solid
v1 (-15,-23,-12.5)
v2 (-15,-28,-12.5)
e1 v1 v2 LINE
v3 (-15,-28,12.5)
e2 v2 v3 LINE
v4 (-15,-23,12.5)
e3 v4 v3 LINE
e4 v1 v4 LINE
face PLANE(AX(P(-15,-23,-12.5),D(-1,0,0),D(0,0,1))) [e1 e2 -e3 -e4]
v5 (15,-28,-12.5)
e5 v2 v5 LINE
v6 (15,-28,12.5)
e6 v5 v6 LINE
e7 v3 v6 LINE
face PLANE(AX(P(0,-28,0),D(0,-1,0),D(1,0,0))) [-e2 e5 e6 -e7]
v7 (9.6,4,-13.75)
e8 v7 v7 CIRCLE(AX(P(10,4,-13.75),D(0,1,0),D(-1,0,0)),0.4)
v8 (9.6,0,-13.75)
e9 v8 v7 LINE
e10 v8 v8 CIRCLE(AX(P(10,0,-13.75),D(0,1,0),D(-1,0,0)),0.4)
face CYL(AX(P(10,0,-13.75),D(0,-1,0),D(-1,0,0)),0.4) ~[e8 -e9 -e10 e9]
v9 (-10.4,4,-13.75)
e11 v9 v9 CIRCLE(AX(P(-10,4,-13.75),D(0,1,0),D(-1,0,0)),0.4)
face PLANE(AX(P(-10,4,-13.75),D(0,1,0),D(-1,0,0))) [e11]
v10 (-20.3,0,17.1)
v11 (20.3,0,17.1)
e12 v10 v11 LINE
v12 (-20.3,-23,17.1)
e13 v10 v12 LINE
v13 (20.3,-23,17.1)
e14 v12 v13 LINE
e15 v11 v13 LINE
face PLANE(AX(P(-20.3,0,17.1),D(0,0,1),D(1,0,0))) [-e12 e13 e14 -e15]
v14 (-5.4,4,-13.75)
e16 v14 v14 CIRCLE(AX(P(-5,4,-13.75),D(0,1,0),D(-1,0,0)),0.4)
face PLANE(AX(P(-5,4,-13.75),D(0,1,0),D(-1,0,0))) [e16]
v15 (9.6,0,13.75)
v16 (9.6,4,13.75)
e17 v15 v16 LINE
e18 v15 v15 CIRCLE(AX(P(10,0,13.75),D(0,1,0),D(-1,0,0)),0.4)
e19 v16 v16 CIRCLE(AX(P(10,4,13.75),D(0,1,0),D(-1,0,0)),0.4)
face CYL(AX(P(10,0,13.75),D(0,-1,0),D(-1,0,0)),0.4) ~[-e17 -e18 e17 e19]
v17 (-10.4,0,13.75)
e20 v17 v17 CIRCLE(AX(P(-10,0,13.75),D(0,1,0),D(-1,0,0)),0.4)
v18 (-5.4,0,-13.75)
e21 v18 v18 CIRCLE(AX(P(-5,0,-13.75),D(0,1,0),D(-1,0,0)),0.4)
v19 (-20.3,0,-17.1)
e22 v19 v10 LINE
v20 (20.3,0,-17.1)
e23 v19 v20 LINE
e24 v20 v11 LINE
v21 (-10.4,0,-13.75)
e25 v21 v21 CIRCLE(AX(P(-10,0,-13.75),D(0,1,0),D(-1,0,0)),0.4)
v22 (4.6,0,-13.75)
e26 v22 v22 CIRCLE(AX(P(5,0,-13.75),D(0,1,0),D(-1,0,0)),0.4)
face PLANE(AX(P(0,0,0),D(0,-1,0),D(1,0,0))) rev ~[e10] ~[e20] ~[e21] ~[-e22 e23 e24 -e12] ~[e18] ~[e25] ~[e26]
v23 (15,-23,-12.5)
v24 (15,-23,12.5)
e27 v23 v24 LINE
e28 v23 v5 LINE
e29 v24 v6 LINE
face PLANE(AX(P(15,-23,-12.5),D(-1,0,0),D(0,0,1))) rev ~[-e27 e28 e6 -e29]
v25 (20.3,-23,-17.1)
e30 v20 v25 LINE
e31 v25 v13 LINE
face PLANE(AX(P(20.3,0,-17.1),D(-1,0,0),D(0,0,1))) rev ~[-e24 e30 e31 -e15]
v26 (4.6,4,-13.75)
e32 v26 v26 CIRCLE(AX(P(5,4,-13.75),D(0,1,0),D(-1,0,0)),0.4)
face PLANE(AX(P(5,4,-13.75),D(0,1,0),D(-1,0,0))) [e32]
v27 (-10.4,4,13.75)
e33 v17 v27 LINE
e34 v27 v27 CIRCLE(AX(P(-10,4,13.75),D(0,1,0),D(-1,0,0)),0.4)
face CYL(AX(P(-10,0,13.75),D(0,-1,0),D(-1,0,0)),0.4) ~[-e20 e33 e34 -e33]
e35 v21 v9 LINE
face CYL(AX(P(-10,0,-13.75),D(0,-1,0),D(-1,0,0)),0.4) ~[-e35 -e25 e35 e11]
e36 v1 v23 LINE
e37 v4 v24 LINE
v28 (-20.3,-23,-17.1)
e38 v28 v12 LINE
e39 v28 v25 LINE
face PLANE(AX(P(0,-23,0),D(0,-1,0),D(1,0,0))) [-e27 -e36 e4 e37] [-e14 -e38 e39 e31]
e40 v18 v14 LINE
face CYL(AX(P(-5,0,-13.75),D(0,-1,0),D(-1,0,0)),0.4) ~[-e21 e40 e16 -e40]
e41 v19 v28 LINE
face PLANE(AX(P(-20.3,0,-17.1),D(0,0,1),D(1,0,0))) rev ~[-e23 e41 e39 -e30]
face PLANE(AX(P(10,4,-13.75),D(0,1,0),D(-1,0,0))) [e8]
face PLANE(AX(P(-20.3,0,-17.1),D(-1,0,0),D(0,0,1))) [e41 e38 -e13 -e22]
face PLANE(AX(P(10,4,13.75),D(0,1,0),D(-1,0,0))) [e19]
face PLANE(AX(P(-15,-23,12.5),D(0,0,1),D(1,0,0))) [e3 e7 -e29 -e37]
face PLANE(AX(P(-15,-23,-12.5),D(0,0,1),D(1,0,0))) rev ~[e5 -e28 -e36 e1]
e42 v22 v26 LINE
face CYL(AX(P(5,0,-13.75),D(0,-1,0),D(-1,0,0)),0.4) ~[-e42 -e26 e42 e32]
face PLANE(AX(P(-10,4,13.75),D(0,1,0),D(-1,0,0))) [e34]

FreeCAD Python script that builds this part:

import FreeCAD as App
import Part
import Sketcher
from FreeCAD import Vector


def add_polygon(sketch, points):
    """Adds a closed chain of lines whose ends are joined by coincident constraints."""
    first, n = sketch.GeometryCount, len(points)
    for a, b in zip(points, points[1:] + points[:1]):
        sketch.addGeometry(Part.LineSegment(App.Vector(*a, 0), App.Vector(*b, 0)), False)
    for i in range(n):
        sketch.addConstraint(Sketcher.Constraint("Coincident", first + i, 2, first + (i + 1) % n, 1))

doc = App.newDocument("Part")
body = doc.addObject("PartDesign::Body", "Body")

sketch1 = body.newObject("Sketcher::SketchObject", "Sketch")
sketch1.AttachmentSupport = (doc.getObject("XZ_Plane"), [""])
sketch1.MapMode = "FlatFace"
add_polygon(sketch1, [(-20, 17), (-20, -17), (20, -17), (20, 17)])
sketch1.addConstraint([
    Sketcher.Constraint("Vertical", 0),
    Sketcher.Constraint("Horizontal", 1),
    Sketcher.Constraint("Vertical", 2),
    Sketcher.Constraint("Horizontal", 3),
    Sketcher.Constraint("Symmetric", 0, 2, 2, 2, -1, 1),
    Sketcher.Constraint("DistanceX", 1, 1, 1, 2, 40.6),
    Sketcher.Constraint("DistanceY", 0, 2, 0, 1, 34.2),
])
pad1 = body.newObject("PartDesign::Pad", "Pad")
pad1.Profile = sketch1
pad1.Length = 23

sketch2 = body.newObject("Sketcher::SketchObject", "Sketch001")
sketch2.AttachmentSupport = (doc.getObject("XZ_Plane"), [""])
sketch2.MapMode = "FlatFace"
sketch2.AttachmentOffset = App.Placement(Vector(0, 0, 23), App.Rotation())
add_polygon(sketch2, [(-15, 12), (-15, -12), (15, -12), (15, 12)])
sketch2.addConstraint([
    Sketcher.Constraint("Vertical", 0),
    Sketcher.Constraint("Horizontal", 1),
    Sketcher.Constraint("Vertical", 2),
    Sketcher.Constraint("Horizontal", 3),
    Sketcher.Constraint("Symmetric", 0, 2, 2, 2, -1, 1),
    Sketcher.Constraint("DistanceX", 1, 1, 1, 2, 30.0),
    Sketcher.Constraint("DistanceY", 0, 2, 0, 1, 25.0),
])
pad2 = body.newObject("PartDesign::Pad", "Pad001")
pad2.Profile = sketch2
pad2.Length = 5

sketch3 = body.newObject("Sketcher::SketchObject", "Sketch002")
sketch3.AttachmentSupport = (doc.getObject("XZ_Plane"), [""])
sketch3.MapMode = "FlatFace"
sketch3.addGeometry([
    Part.Circle(Vector(-10, 13.75, 0), Vector(0, 0, 1), 0.4),
    Part.Circle(Vector(10, 13.75, 0), Vector(0, 0, 1), 0.4),
    Part.Circle(Vector(10, -13.75, 0), Vector(0, 0, 1), 0.4),
    Part.Circle(Vector(5, -13.75, 0), Vector(0, 0, 1), 0.4),
    Part.Circle(Vector(-10, -13.75, 0), Vector(0, 0, 1), 0.4),
    Part.Circle(Vector(-5, -13.75, 0), Vector(0, 0, 1), 0.4),
], False)
sketch3.addConstraint([
    Sketcher.Constraint("Equal", 0, 1),
    Sketcher.Constraint("Equal", 1, 2),
    Sketcher.Constraint("Equal", 2, 3),
    Sketcher.Constraint("Equal", 3, 4),
    Sketcher.Constraint("Equal", 4, 5),
    Sketcher.Constraint("Symmetric", 0, 3, 2, 3, -1, 1),
    Sketcher.Constraint("Symmetric", 1, 3, 4, 3, -1, 1),
    Sketcher.Constraint("Symmetric", 0, 3, 1, 3, -2),
    Sketcher.Constraint("Symmetric", 3, 3, 5, 3, -2),
    Sketcher.Constraint("Horizontal", 2, 3, 3, 3),
    Sketcher.Constraint("Diameter", 0, 0.8),
    Sketcher.Constraint("DistanceX", 0, 3, -1, 1, 10.0),
    Sketcher.Constraint("DistanceX", -1, 1, 3, 3, 5.0),
    Sketcher.Constraint("DistanceY", 2, 3, 1, 3, 27.5),
])
pad3 = body.newObject("PartDesign::Pad", "Pad002")
pad3.Profile = sketch3
pad3.Length = 4
pad3.Reversed = True

doc.recompute()
